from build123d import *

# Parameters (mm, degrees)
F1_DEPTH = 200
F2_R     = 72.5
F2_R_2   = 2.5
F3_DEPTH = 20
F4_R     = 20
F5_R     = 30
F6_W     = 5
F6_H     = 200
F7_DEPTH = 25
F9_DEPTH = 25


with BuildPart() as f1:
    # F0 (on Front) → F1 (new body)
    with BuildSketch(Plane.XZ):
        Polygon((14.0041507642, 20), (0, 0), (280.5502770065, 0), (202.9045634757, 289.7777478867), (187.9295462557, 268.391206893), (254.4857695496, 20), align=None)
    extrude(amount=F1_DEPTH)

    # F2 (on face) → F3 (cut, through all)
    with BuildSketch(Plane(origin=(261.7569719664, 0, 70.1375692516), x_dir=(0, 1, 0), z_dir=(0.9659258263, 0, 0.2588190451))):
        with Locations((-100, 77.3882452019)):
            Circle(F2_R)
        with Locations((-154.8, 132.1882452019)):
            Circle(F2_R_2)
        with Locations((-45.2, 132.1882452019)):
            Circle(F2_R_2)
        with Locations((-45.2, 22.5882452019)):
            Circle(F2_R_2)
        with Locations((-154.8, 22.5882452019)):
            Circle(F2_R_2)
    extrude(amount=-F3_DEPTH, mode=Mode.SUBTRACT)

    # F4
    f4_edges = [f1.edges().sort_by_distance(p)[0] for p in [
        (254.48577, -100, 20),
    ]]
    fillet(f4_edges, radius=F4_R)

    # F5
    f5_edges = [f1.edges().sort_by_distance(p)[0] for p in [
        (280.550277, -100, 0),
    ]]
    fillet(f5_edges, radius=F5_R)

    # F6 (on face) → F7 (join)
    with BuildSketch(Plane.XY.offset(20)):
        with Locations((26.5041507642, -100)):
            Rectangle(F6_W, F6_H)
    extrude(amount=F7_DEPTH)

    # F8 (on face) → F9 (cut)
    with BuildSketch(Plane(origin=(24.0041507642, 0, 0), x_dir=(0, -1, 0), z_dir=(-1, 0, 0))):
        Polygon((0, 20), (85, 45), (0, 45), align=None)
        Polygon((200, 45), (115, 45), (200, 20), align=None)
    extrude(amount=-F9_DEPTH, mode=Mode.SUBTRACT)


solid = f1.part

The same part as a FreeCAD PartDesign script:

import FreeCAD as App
import Part
import Sketcher

V = App.Vector
Q = App.Units.Quantity


def edges_at(feature, points):
    """Names of the edges that pass closest to the given points."""
    edges = feature.Shape.Edges
    near = lambda p: min(range(len(edges)), key=lambda i: edges[i].distToShape(Part.Vertex(*p))[0])
    return sorted({f"Edge{near(p) + 1}" for p in points})

doc = App.newDocument("Part")
body = doc.addObject("PartDesign::Body", "Body")

# Sketch on XZ plane
sketch1 = doc.addObject("Sketcher::SketchObject", "Sketch")
body.addObject(sketch1)
sketch1.AttachmentSupport = (doc.XZ_Plane, [""])
sketch1.MapMode = "FlatFace"
sketch1.addGeometry(Part.LineSegment(V(14, 20, 0), V(0, 0, 0)), False)
sketch1.addGeometry(Part.LineSegment(V(0, 0, 0), V(281, 0, 0)), False)
sketch1.addGeometry(Part.LineSegment(V(281, 0, 0), V(203, 290, 0)), False)
sketch1.addGeometry(Part.LineSegment(V(203, 290, 0), V(188, 268, 0)), False)
sketch1.addGeometry(Part.LineSegment(V(188, 268, 0), V(254, 20, 0)), False)
sketch1.addGeometry(Part.LineSegment(V(254, 20, 0), V(14, 20, 0)), False)
sketch1.addConstraint(Sketcher.Constraint("Coincident", 0, 2, 1, 1))
sketch1.addConstraint(Sketcher.Constraint("Coincident", 1, 2, 2, 1))
sketch1.addConstraint(Sketcher.Constraint("Coincident", 2, 2, 3, 1))
sketch1.addConstraint(Sketcher.Constraint("Coincident", 3, 2, 4, 1))
sketch1.addConstraint(Sketcher.Constraint("Coincident", 4, 2, 5, 1))
sketch1.addConstraint(Sketcher.Constraint("Coincident", 5, 2, 0, 1))
sketch1.addConstraint(Sketcher.Constraint("Horizontal", 1))
sketch1.addConstraint(Sketcher.Constraint("Horizontal", 5))
sketch1.addConstraint(Sketcher.Constraint("Coincident", 0, 2, -1, 1))
sketch1.addConstraint(Sketcher.Constraint("Parallel", 0, 3))
sketch1.addConstraint(Sketcher.Constraint("Parallel", 2, 4))
sketch1.addConstraint(Sketcher.Constraint("Angle", 0, Q("-125 deg")))
sketch1.addConstraint(Sketcher.Constraint("Angle", 2, Q("105 deg")))
sketch1.addConstraint(Sketcher.Constraint("Distance", 2, 300.0))
sketch1.addConstraint(Sketcher.Constraint("DistanceY", -1, 1, 4, 2, 20.0))
sketch1.addConstraint(Sketcher.Constraint("Distance", 4, 257.1535))
sketch1.addConstraint(Sketcher.Constraint("DistanceX", 5, 2, 5, 1, 240.481619))
pad1 = doc.addObject("PartDesign::Pad", "Pad")
body.addObject(pad1)
pad1.Profile = sketch1
pad1.Length = 200

# Sketch on an angled plane
sketch2 = doc.addObject("Sketcher::SketchObject", "Sketch001")
body.addObject(sketch2)
sketch2.Placement = App.Placement(V(261.756972, 0, 70.137569), App.Rotation(V(0, 1, 0), V(-0.258819045, 0, 0.965925826), V(0.965925826, 0, 0.258819045), "ZXY"))
sketch2.addGeometry(Part.Circle(V(-100, 77.4, 0), V(0, 0, 1), 72.5), False)
sketch2.addGeometry(Part.Circle(V(-154.8, 132.2, 0), V(0, 0, 1), 2.5), False)
sketch2.addGeometry(Part.Circle(V(-45.2, 132.2, 0), V(0, 0, 1), 2.5), False)
sketch2.addGeometry(Part.Circle(V(-45.2, 22.6, 0), V(0, 0, 1), 2.5), False)
sketch2.addGeometry(Part.Circle(V(-154.8, 22.6, 0), V(0, 0, 1), 2.5), False)
sketch2.addConstraint(Sketcher.Constraint("Equal", 1, 2))
sketch2.addConstraint(Sketcher.Constraint("Equal", 2, 3))
sketch2.addConstraint(Sketcher.Constraint("Equal", 3, 4))
sketch2.addConstraint(Sketcher.Constraint("Horizontal", 1, 3, 2, 3))
sketch2.addConstraint(Sketcher.Constraint("Horizontal", 3, 3, 4, 3))
sketch2.addConstraint(Sketcher.Constraint("Vertical", 2, 3, 3, 3))
sketch2.addConstraint(Sketcher.Constraint("Vertical", 1, 3, 4, 3))
sketch2.addConstraint(Sketcher.Constraint("Diameter", 0, 145.0))
sketch2.addConstraint(Sketcher.Constraint("Diameter", 1, 5.0))
sketch2.addConstraint(Sketcher.Constraint("DistanceX", 0, 3, -1, 1, 100.0))
sketch2.addConstraint(Sketcher.Constraint("DistanceX", 1, 3, -1, 1, 154.8))
sketch2.addConstraint(Sketcher.Constraint("DistanceX", 2, 3, -1, 1, 45.2))
sketch2.addConstraint(Sketcher.Constraint("DistanceY", 0, 3, 1, 3, 54.8))
sketch2.addConstraint(Sketcher.Constraint("DistanceY", 3, 3, 0, 3, 54.8))
sketch2.addConstraint(Sketcher.Constraint("DistanceY", -1, 1, 0, 3, 77.388245))
pocket1 = doc.addObject("PartDesign::Pocket", "Pocket")
body.addObject(pocket1)
pocket1.Profile = sketch2
pocket1.Length = 20
doc.recompute()

fillet = doc.addObject("PartDesign::Fillet", "Fillet")
body.addObject(fillet)
fillet.Base = (pocket1, edges_at(pocket1, [(254.486, -100, 20)]))
fillet.Radius = 20
doc.recompute()

fillet2 = doc.addObject("PartDesign::Fillet", "Fillet001")
body.addObject(fillet2)
fillet2.Base = (fillet, edges_at(fillet, [(280.55, -100, 0)]))
fillet2.Radius = 30

# Sketch on XY plane
sketch3 = doc.addObject("Sketcher::SketchObject", "Sketch002")
body.addObject(sketch3)
sketch3.AttachmentSupport = (doc.XY_Plane, [""])
sketch3.MapMode = "FlatFace"
sketch3.AttachmentOffset = App.Placement(V(0, 0, 20), App.Rotation())
sketch3.addGeometry(Part.LineSegment(V(24, 0, 0), V(24, -200, 0)), False)
sketch3.addGeometry(Part.LineSegment(V(24, -200, 0), V(29, -200, 0)), False)
sketch3.addGeometry(Part.LineSegment(V(29, -200, 0), V(29, 0, 0)), False)
sketch3.addGeometry(Part.LineSegment(V(29, 0, 0), V(24, 0, 0)), False)
sketch3.addConstraint(Sketcher.Constraint("Coincident", 0, 2, 1, 1))
sketch3.addConstraint(Sketcher.Constraint("Coincident", 1, 2, 2, 1))
sketch3.addConstraint(Sketcher.Constraint("Coincident", 2, 2, 3, 1))
sketch3.addConstraint(Sketcher.Constraint("Coincident", 3, 2, 0, 1))
sketch3.addConstraint(Sketcher.Constraint("Vertical", 0))
sketch3.addConstraint(Sketcher.Constraint("Horizontal", 1))
sketch3.addConstraint(Sketcher.Constraint("Vertical", 2))
sketch3.addConstraint(Sketcher.Constraint("Horizontal", 3))
sketch3.addConstraint(Sketcher.Constraint("PointOnObject", 2, 2, -1))
sketch3.addConstraint(Sketcher.Constraint("DistanceX", 1, 1, 1, 2, 5.0))
sketch3.addConstraint(Sketcher.Constraint("DistanceY", 0, 2, 0, 1, 200.0))
sketch3.addConstraint(Sketcher.Constraint("DistanceX", -1, 1, 0, 2, 24.004151))
pad2 = doc.addObject("PartDesign::Pad", "Pad001")
body.addObject(pad2)
pad2.Profile = sketch3
pad2.Length = 25

# Sketch on YZ plane
sketch4 = doc.addObject("Sketcher::SketchObject", "Sketch003")
body.addObject(sketch4)
sketch4.AttachmentSupport = (doc.YZ_Plane, [""])
sketch4.MapMode = "FlatFace"
sketch4.AttachmentOffset = App.Placement(V(0, 0, 24.004151), App.Rotation())
sketch4.addGeometry(Part.LineSegment(V(0, 20, 0), V(-85, 45, 0)), False)
sketch4.addGeometry(Part.LineSegment(V(-85, 45, 0), V(0, 45, 0)), False)
sketch4.addGeometry(Part.LineSegment(V(0, 45, 0), V(0, 20, 0)), False)
sketch4.addGeometry(Part.LineSegment(V(-200, 45, 0), V(-115, 45, 0)), False)
sketch4.addGeometry(Part.LineSegment(V(-115, 45, 0), V(-200, 20, 0)), False)
sketch4.addGeometry(Part.LineSegment(V(-200, 20, 0), V(-200, 45, 0)), False)
sketch4.addConstraint(Sketcher.Constraint("Coincident", 0, 2, 1, 1))
sketch4.addConstraint(Sketcher.Constraint("Coincident", 1, 2, 2, 1))
sketch4.addConstraint(Sketcher.Constraint("Coincident", 2, 2, 0, 1))
sketch4.addConstraint(Sketcher.Constraint("Coincident", 3, 2, 4, 1))
sketch4.addConstraint(Sketcher.Constraint("Coincident", 4, 2, 5, 1))
sketch4.addConstraint(Sketcher.Constraint("Coincident", 5, 2, 3, 1))
sketch4.addConstraint(Sketcher.Constraint("Horizontal", 1))
sketch4.addConstraint(Sketcher.Constraint("Vertical", 2))
sketch4.addConstraint(Sketcher.Constraint("Horizontal", 3))
sketch4.addConstraint(Sketcher.Constraint("Vertical", 5))
sketch4.addConstraint(Sketcher.Constraint("PointOnObject", 1, 2, -2))
sketch4.addConstraint(Sketcher.Constraint("Horizontal", 1, 2, 3, 2))
sketch4.addConstraint(Sketcher.Constraint("Horizontal", 2, 2, 4, 2))
sketch4.addConstraint(Sketcher.Constraint("Equal", 1, 3))
sketch4.addConstraint(Sketcher.Constraint("DistanceX", 1, 1, 1, 2, 85.0))
sketch4.addConstraint(Sketcher.Constraint("DistanceY", 2, 2, 2, 1, 25.0))
sketch4.addConstraint(Sketcher.Constraint("DistanceY", -1, 1, 0, 2, 45.0))
sketch4.addConstraint(Sketcher.Constraint("DistanceX", 3, 2, -1, 1, 115.0))
pocket2 = doc.addObject("PartDesign::Pocket", "Pocket001")
body.addObject(pocket2)
pocket2.Profile = sketch4
pocket2.Length = 25
pocket2.Reversed = True

doc.recompute()
